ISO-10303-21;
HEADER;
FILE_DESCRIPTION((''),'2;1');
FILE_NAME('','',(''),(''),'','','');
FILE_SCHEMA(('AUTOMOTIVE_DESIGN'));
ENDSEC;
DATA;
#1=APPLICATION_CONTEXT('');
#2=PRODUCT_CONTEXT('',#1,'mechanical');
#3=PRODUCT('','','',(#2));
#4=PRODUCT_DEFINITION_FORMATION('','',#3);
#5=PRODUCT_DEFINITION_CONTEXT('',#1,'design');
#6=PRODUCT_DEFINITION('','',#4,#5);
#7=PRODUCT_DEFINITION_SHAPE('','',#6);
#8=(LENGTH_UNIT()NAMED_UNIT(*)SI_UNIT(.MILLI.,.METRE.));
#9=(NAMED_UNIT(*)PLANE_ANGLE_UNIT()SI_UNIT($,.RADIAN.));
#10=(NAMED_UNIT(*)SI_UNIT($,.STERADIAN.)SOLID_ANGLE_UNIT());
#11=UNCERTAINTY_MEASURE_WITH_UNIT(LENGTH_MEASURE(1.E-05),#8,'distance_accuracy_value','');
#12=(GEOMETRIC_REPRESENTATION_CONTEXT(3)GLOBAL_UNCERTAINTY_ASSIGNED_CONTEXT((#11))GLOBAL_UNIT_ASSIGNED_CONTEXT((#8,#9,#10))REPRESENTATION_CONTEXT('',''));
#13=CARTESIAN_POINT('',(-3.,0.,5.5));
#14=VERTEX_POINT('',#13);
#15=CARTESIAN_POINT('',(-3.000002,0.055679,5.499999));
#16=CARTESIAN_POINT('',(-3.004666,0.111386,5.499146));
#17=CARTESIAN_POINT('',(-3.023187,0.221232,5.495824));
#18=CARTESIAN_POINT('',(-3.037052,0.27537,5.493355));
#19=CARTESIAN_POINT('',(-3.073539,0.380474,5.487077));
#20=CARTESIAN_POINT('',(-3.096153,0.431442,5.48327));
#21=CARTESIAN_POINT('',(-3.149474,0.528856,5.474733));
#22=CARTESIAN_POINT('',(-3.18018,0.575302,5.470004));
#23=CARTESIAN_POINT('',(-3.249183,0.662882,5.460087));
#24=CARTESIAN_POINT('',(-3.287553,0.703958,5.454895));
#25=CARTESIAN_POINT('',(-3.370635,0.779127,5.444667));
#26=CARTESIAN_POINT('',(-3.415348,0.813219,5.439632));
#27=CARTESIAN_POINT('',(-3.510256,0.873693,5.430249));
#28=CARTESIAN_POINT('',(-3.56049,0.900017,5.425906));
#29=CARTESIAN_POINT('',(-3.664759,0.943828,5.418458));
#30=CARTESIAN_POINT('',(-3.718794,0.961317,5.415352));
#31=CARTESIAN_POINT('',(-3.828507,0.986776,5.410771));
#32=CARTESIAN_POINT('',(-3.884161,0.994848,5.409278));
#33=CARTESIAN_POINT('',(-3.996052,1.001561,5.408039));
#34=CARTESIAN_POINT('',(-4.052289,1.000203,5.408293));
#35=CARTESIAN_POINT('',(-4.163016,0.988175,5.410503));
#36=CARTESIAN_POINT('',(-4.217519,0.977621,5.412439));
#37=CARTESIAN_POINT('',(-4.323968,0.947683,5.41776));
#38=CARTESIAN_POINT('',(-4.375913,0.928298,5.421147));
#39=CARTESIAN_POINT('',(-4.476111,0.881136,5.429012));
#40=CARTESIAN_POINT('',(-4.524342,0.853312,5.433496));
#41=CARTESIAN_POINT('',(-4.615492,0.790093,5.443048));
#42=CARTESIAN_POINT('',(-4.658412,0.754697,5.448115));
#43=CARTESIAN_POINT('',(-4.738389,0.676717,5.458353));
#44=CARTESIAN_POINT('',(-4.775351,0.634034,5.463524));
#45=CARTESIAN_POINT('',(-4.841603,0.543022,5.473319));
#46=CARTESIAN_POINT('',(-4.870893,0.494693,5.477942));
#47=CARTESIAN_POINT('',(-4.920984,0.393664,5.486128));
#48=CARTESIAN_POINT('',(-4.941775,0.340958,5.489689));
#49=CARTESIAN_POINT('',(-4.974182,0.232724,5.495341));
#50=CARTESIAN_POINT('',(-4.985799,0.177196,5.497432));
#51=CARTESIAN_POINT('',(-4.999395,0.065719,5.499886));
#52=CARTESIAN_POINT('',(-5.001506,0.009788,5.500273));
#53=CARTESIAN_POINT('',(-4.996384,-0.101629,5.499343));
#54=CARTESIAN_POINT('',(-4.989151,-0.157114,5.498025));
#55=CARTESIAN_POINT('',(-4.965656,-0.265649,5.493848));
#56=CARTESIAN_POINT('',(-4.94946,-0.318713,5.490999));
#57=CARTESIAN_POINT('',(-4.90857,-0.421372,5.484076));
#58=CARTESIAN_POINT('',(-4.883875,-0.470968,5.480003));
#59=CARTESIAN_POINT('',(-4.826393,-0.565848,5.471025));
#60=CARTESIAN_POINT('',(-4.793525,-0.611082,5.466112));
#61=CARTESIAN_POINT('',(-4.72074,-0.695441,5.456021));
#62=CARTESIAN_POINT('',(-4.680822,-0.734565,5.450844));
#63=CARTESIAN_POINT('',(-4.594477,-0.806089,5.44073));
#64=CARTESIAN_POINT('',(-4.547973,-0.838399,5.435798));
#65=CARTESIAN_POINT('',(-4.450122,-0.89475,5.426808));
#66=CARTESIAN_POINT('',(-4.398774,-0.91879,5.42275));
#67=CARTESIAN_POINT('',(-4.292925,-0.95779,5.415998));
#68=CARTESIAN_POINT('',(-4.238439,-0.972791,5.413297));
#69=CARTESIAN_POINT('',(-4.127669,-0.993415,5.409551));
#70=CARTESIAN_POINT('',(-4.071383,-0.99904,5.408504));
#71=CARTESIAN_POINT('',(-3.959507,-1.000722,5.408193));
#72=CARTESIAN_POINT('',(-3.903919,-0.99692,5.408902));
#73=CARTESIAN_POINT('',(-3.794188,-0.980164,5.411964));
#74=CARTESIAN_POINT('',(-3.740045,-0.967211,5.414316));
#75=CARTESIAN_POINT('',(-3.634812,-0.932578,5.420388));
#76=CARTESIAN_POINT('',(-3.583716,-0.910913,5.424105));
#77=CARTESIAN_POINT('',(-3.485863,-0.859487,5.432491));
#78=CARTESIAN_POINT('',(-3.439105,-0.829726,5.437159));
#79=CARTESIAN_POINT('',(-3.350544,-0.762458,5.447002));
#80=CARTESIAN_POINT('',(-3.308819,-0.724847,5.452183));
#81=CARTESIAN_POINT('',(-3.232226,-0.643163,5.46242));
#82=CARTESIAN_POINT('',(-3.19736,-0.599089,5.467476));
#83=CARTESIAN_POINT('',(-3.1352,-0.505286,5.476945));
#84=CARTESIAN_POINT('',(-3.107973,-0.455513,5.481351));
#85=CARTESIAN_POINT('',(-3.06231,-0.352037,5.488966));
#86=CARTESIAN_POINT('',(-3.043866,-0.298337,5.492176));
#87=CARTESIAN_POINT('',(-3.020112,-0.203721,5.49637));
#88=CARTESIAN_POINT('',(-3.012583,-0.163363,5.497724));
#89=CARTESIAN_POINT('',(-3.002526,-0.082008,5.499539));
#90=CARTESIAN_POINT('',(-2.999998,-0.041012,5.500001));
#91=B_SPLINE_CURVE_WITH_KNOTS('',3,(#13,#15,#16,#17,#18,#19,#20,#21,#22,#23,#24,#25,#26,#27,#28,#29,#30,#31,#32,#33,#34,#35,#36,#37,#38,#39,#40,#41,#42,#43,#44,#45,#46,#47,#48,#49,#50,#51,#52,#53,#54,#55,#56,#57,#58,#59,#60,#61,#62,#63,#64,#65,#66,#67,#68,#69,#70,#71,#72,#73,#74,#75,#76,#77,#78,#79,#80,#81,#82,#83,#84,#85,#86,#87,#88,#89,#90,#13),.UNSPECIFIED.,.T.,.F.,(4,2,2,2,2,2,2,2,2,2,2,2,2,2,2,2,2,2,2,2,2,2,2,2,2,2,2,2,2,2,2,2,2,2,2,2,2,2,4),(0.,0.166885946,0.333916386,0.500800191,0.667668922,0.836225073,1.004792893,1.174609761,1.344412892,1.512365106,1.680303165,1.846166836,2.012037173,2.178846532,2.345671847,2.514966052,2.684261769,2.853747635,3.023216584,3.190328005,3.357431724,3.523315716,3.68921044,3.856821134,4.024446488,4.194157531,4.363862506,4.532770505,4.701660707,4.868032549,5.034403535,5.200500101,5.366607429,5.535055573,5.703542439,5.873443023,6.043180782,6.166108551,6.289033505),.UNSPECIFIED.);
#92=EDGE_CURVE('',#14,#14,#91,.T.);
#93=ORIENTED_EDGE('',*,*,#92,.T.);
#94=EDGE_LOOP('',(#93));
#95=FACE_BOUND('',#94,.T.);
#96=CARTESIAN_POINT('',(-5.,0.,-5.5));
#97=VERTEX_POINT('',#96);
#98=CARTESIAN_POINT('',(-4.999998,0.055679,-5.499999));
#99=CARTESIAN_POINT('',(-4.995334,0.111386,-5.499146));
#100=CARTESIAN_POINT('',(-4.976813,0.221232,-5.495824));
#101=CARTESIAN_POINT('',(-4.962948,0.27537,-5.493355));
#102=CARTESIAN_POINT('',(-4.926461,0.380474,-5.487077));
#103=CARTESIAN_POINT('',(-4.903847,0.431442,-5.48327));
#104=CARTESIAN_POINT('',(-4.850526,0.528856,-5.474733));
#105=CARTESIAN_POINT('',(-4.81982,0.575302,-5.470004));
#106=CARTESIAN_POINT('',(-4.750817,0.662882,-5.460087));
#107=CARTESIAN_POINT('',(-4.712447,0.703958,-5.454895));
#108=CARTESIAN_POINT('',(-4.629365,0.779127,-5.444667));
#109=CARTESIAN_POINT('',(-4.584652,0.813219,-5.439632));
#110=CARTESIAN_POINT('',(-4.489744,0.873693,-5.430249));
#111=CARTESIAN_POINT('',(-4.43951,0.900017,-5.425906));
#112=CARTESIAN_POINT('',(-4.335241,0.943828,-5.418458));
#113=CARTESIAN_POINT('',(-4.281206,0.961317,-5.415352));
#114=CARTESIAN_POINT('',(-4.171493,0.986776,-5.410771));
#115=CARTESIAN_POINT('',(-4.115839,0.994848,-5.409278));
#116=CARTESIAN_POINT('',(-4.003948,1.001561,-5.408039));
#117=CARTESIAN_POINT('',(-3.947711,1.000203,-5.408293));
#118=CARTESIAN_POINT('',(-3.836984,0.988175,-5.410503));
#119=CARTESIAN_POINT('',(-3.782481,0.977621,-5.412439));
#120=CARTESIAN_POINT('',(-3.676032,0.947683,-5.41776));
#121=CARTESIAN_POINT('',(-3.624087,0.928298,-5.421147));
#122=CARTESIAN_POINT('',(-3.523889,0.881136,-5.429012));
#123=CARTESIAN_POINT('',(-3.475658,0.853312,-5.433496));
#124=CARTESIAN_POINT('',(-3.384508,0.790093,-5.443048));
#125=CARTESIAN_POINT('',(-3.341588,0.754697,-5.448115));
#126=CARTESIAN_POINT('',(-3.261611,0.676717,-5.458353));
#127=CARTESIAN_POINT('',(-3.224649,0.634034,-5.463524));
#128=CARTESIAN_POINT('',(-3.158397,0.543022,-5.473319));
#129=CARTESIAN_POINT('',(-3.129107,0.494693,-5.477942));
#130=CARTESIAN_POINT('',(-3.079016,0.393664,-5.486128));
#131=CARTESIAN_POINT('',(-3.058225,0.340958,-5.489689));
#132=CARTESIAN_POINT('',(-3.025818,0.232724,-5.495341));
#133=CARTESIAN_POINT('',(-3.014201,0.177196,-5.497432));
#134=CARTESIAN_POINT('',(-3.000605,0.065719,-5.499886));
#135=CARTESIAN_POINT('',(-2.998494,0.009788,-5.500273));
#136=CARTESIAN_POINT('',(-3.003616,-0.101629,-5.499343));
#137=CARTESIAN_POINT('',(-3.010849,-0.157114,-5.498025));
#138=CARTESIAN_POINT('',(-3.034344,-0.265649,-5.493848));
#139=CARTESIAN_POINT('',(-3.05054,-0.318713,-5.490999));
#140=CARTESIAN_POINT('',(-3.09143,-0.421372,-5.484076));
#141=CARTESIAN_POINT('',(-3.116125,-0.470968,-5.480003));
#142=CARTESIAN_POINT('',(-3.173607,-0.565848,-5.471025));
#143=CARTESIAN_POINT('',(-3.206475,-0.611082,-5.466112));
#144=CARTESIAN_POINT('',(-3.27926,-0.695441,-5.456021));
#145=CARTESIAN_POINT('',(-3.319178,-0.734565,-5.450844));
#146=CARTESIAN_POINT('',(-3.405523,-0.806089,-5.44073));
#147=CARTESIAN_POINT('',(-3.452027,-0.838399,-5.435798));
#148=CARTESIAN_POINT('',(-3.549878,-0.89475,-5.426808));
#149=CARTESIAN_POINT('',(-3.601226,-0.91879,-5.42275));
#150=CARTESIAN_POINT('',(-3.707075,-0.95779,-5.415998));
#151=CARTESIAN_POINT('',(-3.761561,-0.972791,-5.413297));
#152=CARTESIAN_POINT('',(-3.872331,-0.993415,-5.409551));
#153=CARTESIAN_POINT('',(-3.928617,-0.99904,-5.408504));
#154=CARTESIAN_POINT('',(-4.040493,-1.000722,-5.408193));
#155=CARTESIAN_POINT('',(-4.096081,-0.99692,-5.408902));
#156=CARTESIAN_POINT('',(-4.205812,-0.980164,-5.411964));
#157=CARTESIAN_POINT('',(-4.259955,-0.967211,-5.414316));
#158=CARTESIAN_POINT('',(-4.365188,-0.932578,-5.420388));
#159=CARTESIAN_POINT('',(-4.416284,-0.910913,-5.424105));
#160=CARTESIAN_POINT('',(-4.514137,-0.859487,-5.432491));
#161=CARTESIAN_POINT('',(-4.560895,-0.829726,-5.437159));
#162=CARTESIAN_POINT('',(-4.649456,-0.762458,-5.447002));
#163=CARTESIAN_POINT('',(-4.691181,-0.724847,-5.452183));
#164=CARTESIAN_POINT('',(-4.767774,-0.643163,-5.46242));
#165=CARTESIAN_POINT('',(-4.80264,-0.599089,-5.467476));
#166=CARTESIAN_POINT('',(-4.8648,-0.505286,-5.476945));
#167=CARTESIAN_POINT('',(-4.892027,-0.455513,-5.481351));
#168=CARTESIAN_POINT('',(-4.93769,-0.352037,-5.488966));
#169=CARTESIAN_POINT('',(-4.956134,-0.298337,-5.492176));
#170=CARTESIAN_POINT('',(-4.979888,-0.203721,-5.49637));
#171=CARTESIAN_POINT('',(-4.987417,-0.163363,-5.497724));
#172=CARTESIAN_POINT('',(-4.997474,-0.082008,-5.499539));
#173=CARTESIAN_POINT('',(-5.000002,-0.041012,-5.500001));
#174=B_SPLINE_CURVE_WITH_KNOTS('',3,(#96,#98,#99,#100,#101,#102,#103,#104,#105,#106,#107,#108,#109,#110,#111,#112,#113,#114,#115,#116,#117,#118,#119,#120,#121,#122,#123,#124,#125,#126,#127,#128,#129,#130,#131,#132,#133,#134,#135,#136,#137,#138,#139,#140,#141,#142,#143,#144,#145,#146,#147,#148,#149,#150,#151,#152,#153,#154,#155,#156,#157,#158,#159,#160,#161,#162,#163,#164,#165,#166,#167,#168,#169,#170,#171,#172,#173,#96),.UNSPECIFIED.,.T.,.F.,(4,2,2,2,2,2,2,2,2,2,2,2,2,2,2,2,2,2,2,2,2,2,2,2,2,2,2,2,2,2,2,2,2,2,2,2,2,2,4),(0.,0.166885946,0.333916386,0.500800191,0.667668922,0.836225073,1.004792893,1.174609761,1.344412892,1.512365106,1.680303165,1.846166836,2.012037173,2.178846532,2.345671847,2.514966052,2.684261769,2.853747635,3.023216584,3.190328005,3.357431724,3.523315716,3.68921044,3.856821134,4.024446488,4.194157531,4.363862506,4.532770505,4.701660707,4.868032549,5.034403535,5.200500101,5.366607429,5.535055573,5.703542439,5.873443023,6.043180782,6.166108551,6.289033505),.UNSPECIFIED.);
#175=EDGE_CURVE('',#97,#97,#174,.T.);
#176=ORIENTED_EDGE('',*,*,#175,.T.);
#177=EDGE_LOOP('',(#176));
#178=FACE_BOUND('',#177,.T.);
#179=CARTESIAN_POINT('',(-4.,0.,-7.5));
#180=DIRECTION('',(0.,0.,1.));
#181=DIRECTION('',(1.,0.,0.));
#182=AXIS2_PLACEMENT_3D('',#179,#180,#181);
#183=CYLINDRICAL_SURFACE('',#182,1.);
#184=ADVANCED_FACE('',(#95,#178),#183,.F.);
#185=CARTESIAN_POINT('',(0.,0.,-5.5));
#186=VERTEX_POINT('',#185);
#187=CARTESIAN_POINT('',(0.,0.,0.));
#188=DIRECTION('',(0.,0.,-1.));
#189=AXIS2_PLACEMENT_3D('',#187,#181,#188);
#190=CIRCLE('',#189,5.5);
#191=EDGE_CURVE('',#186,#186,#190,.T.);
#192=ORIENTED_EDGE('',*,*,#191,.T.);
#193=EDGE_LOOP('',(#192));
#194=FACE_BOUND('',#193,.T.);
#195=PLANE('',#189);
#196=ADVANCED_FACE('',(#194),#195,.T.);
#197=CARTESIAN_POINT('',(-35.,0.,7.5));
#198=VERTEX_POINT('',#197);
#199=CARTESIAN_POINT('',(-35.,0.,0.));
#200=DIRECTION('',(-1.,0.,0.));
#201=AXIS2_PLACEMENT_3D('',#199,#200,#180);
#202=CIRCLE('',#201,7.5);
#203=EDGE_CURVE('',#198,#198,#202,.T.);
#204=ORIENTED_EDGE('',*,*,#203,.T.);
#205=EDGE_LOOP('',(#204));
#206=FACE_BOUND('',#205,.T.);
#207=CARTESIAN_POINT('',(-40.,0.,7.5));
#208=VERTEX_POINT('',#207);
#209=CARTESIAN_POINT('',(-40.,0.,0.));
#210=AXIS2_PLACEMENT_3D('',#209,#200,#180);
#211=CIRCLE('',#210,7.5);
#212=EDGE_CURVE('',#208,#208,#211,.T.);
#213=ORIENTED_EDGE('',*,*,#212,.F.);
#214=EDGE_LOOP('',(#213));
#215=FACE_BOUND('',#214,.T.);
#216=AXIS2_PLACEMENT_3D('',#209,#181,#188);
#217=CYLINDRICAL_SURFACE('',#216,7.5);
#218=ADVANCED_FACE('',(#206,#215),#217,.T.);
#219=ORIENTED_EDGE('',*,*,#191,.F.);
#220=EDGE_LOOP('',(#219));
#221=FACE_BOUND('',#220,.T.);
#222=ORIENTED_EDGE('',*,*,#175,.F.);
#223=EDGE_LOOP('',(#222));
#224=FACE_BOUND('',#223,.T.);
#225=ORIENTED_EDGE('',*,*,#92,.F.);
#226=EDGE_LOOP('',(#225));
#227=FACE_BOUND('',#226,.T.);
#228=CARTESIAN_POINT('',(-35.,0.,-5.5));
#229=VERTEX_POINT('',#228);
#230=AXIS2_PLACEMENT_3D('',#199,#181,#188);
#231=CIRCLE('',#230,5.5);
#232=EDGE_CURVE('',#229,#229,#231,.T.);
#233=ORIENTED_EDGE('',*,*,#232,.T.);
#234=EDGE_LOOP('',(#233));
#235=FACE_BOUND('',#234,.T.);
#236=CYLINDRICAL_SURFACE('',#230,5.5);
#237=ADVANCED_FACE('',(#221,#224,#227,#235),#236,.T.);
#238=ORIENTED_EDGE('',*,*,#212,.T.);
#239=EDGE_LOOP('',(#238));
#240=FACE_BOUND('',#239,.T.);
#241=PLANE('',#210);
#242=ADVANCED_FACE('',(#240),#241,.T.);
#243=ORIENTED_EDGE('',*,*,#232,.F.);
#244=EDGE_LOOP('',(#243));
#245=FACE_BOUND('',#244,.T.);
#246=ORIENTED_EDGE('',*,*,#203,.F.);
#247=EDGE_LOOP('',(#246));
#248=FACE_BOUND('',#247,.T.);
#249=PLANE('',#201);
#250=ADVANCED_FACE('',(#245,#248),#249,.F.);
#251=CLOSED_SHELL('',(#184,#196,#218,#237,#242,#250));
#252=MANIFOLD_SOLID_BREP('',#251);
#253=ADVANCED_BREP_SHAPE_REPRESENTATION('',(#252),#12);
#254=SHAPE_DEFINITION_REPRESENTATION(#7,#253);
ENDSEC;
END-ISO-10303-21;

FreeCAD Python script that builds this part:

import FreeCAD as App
import Part
import Sketcher

doc = App.newDocument("Part")
body = doc.addObject("PartDesign::Body", "Body")

# Sketch on YZ plane
sketch1 = doc.addObject("Sketcher::SketchObject", "Sketch")
body.addObject(sketch1)
sketch1.AttachmentSupport = (doc.YZ_Plane, [""])
sketch1.MapMode = "FlatFace"
sketch1.addGeometry(Part.Circle(App.Vector(0, 0, 0), App.Vector(0, 0, 1), 5.5), False)
sketch1.addConstraint([
    Sketcher.Constraint("Coincident", 0, 3, -1, 1),
    Sketcher.Constraint("Diameter", 0, 11.0),
])
pad1 = doc.addObject("PartDesign::Pad", "Pad")
body.addObject(pad1)
pad1.Profile = sketch1
pad1.Length = 35
pad1.Reversed = True

# Sketch on YZ plane
sketch2 = doc.addObject("Sketcher::SketchObject", "Sketch001")
body.addObject(sketch2)
sketch2.AttachmentSupport = (doc.YZ_Plane, [""])
sketch2.MapMode = "FlatFace"
sketch2.AttachmentOffset = App.Placement(App.Vector(0, 0, -35), App.Rotation())
sketch2.addGeometry(Part.Circle(App.Vector(0, 0, 0), App.Vector(0, 0, 1), 7.5), False)
sketch2.addConstraint([
    Sketcher.Constraint("Coincident", 0, 3, -1, 1),
    Sketcher.Constraint("Diameter", 0, 15.0),
])
pad2 = doc.addObject("PartDesign::Pad", "Pad001")
body.addObject(pad2)
pad2.Profile = sketch2
pad2.Length = 5
pad2.Reversed = True

# Sketch on XY plane
sketch3 = doc.addObject("Sketcher::SketchObject", "Sketch002")
body.addObject(sketch3)
sketch3.AttachmentSupport = (doc.XY_Plane, [""])
sketch3.MapMode = "FlatFace"
sketch3.addGeometry(Part.Circle(App.Vector(-4, 0, 0), App.Vector(0, 0, 1), 1), False)
sketch3.addConstraint([
    Sketcher.Constraint("PointOnObject", 0, 3, -1),
    Sketcher.Constraint("Diameter", 0, 2.0),
    Sketcher.Constraint("DistanceX", 0, 3, -1, 1, 4.0),
])
pocket1 = doc.addObject("PartDesign::Pocket", "Pocket")
body.addObject(pocket1)
pocket1.Profile = sketch3
pocket1.Type = "ThroughAll"
pocket1.Midplane = True

doc.recompute()
